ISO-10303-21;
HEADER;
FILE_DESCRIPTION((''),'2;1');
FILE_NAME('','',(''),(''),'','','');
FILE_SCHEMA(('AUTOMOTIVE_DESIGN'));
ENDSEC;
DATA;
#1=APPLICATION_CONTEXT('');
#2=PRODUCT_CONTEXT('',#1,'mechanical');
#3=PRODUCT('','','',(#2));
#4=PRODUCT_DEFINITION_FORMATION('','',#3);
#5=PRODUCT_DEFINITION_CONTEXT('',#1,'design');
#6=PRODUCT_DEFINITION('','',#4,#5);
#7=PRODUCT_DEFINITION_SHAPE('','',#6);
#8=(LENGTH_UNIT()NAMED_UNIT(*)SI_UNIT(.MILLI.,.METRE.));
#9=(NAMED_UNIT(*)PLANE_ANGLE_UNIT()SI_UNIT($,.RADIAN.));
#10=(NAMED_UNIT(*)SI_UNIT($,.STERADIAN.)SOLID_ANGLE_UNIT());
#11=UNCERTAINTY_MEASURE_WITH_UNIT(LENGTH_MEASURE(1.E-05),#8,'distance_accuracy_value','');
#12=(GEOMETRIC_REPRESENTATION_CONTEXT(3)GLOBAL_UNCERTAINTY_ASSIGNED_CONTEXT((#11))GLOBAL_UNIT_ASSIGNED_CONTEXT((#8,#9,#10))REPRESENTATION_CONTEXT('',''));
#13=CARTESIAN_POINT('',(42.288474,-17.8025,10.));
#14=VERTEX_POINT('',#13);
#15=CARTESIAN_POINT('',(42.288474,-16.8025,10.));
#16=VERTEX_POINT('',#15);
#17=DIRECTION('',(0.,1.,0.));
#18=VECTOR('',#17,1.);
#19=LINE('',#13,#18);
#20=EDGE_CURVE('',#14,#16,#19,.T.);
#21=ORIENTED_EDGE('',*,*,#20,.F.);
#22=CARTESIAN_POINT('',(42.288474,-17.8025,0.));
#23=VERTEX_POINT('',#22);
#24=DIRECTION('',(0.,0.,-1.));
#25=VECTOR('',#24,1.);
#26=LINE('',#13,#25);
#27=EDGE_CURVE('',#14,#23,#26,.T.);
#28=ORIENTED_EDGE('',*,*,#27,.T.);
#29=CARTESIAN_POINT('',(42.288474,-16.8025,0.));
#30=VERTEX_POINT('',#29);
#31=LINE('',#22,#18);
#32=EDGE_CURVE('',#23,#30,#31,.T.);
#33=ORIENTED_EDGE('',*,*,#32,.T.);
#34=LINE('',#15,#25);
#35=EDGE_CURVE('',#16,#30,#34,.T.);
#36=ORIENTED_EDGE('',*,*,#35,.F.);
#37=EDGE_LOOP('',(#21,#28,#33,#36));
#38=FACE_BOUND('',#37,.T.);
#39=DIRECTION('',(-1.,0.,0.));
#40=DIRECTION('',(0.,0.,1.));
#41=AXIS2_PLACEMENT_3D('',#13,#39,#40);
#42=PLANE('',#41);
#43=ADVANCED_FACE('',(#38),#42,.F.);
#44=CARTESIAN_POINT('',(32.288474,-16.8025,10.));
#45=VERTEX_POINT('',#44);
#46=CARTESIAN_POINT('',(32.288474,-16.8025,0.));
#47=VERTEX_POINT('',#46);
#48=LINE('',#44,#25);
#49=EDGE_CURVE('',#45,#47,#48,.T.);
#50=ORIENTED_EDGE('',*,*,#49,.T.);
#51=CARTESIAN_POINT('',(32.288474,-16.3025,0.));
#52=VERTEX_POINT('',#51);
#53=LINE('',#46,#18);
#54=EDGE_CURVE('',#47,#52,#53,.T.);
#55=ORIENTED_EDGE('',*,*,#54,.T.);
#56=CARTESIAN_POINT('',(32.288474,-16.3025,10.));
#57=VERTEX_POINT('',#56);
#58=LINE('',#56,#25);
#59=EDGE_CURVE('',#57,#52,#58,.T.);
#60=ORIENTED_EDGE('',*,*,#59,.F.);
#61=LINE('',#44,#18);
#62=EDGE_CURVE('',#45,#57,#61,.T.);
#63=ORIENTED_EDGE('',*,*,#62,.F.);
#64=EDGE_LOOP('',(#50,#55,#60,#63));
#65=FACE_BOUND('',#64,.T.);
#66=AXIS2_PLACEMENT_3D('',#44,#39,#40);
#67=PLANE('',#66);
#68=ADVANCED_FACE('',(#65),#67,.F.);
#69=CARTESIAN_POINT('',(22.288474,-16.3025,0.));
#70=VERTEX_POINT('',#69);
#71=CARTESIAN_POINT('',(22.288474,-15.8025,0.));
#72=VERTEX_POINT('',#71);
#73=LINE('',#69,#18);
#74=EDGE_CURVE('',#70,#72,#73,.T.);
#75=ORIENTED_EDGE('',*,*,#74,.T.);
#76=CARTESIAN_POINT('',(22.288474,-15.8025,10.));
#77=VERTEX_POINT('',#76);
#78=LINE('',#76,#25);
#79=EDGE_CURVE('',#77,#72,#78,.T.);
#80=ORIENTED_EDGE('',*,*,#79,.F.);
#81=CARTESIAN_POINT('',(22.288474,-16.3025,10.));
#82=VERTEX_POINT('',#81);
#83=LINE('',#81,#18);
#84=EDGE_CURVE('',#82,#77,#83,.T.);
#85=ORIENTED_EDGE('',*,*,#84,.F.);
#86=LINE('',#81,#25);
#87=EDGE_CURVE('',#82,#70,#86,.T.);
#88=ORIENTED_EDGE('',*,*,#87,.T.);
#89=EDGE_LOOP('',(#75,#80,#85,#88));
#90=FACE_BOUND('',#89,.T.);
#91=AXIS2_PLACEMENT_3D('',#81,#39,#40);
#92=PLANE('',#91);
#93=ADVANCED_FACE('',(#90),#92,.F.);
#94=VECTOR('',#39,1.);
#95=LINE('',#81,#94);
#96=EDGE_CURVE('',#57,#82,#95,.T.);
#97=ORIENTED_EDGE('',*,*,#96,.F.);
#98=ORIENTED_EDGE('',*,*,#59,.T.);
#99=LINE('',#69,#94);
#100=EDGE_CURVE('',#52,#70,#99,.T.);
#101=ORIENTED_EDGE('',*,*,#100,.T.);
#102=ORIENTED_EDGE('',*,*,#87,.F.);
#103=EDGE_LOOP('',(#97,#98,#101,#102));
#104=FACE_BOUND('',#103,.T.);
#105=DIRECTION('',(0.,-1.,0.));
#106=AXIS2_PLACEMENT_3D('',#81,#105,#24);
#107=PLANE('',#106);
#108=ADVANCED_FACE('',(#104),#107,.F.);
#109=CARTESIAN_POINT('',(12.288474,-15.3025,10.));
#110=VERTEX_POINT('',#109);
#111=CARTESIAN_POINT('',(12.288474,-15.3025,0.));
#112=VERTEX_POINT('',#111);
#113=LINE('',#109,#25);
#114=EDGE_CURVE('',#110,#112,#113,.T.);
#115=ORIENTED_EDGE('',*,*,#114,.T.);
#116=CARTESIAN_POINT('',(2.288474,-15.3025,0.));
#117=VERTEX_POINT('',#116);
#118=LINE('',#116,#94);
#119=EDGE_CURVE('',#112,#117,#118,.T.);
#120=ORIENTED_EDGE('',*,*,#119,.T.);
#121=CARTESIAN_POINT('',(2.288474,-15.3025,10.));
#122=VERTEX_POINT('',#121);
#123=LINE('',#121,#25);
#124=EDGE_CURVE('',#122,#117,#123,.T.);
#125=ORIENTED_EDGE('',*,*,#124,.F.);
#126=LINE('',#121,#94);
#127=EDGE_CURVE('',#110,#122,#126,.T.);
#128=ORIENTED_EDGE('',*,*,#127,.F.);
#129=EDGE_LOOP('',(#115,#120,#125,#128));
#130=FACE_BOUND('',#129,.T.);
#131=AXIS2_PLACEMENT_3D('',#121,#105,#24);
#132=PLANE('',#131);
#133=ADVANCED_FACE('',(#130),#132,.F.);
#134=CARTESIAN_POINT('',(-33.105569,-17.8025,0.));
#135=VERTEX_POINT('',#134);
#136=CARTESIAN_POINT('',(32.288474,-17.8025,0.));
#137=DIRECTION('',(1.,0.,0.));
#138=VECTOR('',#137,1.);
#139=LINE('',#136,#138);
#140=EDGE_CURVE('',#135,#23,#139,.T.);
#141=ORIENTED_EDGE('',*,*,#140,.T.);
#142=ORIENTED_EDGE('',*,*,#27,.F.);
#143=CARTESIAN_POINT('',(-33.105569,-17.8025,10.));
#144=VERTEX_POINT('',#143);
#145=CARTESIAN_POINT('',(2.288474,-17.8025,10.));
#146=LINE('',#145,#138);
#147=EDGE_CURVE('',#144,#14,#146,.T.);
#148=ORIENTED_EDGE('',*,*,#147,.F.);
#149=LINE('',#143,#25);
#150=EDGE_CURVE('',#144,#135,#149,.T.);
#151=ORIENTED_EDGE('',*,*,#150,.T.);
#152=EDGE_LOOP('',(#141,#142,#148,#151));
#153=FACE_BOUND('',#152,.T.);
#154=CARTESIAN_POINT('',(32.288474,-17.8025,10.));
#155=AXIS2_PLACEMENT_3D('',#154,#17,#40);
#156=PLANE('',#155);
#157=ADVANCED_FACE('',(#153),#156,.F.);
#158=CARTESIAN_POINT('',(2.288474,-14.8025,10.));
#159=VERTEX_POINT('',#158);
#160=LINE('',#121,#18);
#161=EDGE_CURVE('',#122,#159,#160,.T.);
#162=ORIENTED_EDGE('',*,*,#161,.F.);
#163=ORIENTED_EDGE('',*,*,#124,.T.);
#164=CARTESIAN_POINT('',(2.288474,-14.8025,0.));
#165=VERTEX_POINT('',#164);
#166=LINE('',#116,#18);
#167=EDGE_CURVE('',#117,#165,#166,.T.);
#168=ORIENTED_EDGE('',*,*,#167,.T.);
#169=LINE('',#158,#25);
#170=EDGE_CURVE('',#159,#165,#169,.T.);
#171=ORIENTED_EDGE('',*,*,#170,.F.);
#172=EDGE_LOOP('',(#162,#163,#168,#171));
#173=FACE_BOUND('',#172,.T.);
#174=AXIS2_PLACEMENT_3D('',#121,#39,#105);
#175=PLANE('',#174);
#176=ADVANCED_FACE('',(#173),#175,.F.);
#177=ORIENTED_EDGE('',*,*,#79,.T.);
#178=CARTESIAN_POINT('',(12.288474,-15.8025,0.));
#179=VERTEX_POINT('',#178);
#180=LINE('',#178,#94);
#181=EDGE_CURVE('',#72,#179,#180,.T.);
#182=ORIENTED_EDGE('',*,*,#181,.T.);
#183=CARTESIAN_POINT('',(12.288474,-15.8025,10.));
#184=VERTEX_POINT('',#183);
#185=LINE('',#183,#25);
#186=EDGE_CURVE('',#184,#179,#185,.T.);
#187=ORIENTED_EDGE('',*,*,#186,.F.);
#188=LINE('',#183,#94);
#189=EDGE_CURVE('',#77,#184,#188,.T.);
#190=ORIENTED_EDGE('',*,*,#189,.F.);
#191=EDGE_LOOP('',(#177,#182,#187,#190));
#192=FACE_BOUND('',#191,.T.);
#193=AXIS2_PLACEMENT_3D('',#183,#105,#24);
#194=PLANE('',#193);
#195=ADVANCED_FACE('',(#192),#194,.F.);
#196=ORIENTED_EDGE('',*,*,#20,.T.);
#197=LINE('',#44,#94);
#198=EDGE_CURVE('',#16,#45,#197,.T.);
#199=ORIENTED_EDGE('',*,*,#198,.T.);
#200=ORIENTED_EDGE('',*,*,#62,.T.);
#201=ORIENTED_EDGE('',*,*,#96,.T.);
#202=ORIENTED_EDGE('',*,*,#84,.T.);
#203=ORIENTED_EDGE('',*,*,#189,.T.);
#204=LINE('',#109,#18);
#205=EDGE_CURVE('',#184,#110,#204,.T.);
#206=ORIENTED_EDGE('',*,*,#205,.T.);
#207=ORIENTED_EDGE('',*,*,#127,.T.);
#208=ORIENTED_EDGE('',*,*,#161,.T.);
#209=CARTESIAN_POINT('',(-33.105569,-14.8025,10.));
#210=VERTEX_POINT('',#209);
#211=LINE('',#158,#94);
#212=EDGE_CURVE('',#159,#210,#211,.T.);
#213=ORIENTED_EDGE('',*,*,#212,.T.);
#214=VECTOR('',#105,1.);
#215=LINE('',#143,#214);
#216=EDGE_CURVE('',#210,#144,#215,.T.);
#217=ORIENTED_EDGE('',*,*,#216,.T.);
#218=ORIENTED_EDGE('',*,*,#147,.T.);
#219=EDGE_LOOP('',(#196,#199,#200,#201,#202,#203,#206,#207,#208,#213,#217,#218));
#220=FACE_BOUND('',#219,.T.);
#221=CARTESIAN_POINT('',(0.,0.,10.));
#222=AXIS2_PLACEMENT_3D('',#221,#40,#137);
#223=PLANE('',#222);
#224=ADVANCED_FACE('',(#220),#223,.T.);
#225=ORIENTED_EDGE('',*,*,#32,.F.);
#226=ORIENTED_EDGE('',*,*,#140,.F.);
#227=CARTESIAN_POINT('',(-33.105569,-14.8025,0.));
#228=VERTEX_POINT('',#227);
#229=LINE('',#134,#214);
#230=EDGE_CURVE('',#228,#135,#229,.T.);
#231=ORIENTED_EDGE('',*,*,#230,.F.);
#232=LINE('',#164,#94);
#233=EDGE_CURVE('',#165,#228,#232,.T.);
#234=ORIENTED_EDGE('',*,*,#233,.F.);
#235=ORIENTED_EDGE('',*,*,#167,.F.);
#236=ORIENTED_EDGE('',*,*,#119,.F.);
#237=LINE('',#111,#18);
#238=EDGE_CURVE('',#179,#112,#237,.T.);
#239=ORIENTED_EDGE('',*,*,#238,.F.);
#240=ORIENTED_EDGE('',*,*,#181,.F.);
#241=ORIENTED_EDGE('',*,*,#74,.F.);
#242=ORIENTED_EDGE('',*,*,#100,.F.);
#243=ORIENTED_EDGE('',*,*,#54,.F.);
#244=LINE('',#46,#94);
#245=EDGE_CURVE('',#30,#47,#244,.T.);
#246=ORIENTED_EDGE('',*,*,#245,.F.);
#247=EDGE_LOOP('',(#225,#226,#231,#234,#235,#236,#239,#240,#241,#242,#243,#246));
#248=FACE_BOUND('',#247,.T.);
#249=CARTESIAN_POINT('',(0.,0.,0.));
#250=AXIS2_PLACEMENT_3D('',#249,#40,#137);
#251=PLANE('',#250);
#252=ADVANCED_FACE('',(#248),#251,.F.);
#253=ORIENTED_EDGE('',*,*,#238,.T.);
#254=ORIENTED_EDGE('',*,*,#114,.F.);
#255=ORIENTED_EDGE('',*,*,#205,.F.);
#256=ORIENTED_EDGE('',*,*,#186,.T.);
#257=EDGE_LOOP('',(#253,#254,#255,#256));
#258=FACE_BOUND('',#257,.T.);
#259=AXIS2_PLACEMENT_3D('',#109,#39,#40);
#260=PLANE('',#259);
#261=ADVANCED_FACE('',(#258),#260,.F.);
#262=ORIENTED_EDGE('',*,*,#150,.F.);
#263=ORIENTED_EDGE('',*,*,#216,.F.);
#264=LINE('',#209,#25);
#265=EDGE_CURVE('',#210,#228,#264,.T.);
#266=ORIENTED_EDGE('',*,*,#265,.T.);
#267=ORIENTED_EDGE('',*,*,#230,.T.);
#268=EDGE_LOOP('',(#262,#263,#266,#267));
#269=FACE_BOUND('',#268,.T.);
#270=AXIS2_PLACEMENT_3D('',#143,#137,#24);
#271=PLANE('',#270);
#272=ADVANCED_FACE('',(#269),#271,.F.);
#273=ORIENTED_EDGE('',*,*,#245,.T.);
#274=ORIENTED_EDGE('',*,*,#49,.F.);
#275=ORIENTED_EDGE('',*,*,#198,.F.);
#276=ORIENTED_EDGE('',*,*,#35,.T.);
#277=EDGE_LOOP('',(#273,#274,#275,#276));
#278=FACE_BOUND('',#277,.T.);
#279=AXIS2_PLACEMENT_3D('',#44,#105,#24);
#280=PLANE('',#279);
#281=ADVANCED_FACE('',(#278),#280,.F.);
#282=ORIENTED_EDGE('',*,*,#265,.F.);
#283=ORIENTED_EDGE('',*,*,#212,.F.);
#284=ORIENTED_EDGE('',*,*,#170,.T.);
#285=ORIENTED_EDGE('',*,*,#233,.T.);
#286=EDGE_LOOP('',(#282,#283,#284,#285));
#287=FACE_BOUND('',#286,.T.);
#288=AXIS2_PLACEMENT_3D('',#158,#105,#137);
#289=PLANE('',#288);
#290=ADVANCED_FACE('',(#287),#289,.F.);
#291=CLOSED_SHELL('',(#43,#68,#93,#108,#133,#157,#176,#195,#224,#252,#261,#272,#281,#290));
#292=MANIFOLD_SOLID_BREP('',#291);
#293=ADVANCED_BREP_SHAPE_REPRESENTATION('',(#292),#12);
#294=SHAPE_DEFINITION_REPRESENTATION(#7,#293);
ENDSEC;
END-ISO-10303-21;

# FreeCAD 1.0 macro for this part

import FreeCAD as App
import Part
import Sketcher
Q = App.Units.Quantity


def add_polygon(sketch, points):
    """Adds a closed chain of lines whose ends are joined by coincident constraints."""
    first, n = sketch.GeometryCount, len(points)
    for a, b in zip(points, points[1:] + points[:1]):
        sketch.addGeometry(Part.LineSegment(App.Vector(*a, 0), App.Vector(*b, 0)), False)
    for i in range(n):
        sketch.addConstraint(Sketcher.Constraint("Coincident", first + i, 2, first + (i + 1) % n, 1))

doc = App.newDocument("Part")
body = doc.addObject("PartDesign::Body", "Body")

# Sketch on XY plane
sketch1 = doc.addObject("Sketcher::SketchObject", "Sketch")
body.addObject(sketch1)
sketch1.AttachmentSupport = (doc.XY_Plane, [""])
sketch1.MapMode = "FlatFace"
add_polygon(sketch1, [(12.288474, -15.3025), (2.288474, -15.3025), (2.288474, -14.8025), (-33.105569, -14.8025), (-33.105569, -17.8025), (42.288474, -17.8025), (42.288474, -16.8025), (32.288474, -16.8025), (32.288474, -16.3025), (22.288474, -16.3025), (22.288474, -15.8025), (12.288474, -15.8025)])  # lines 0-11
sketch1.addConstraint([
    Sketcher.Constraint("Horizontal", 0),
    Sketcher.Constraint("Vertical", 1),
    Sketcher.Constraint("Horizontal", 2),
    Sketcher.Constraint("Vertical", 3),
    Sketcher.Constraint("Horizontal", 4),
    Sketcher.Constraint("Vertical", 5),
    Sketcher.Constraint("Horizontal", 6),
    Sketcher.Constraint("Vertical", 7),
    Sketcher.Constraint("Horizontal", 8),
    Sketcher.Constraint("Vertical", 9),
    Sketcher.Constraint("Horizontal", 10),
    Sketcher.Constraint("Vertical", 11),
    Sketcher.Constraint("Equal", 0, 6),
    Sketcher.Constraint("Equal", 6, 8),
    Sketcher.Constraint("Equal", 8, 10),
    Sketcher.Constraint("Equal", 1, 7),
    Sketcher.Constraint("Equal", 7, 9),
    Sketcher.Constraint("Equal", 9, 11),
    Sketcher.Constraint("DistanceX", 0, 2, 0, 1, Q("10 mm")),
    Sketcher.Constraint("DistanceY", 3, 2, 3, 1, Q("3 mm")),
    Sketcher.Constraint("DistanceY", 5, 1, 5, 2, Q("1 mm")),
    Sketcher.Constraint("DistanceY", 0, 2, -1, 1, Q("15.3025 mm")),
    Sketcher.Constraint("DistanceX", 2, 2, 2, 1, Q("35.394043 mm")),
    Sketcher.Constraint("DistanceX", 2, 2, -1, 1, Q("33.105569 mm")),
])
pad1 = doc.addObject("PartDesign::Pad", "Pad")
body.addObject(pad1)
pad1.Profile = sketch1
pad1.Length = 10

doc.recompute()
